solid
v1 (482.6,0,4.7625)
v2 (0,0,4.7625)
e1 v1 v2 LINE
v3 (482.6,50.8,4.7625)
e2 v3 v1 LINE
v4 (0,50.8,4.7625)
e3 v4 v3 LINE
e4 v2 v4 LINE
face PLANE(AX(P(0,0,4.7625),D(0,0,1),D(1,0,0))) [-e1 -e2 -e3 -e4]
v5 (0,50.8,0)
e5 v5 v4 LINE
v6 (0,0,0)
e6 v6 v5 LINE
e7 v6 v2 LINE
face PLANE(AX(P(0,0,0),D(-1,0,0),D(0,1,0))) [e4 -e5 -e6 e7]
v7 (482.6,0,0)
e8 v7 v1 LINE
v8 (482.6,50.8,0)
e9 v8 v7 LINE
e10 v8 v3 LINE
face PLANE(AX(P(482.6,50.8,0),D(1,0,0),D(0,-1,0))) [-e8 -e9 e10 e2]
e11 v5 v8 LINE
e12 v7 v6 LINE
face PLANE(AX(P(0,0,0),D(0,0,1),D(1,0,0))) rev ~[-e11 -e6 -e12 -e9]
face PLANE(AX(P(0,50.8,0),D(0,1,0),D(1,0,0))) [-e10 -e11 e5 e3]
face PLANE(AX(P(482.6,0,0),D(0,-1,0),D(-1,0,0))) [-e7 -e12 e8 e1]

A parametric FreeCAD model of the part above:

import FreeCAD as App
import Part
import Sketcher

V = App.Vector
Q = App.Units.Quantity


def add_polygon(sketch, points):
    """Adds a closed chain of lines whose ends are joined by coincident constraints."""
    first, n = sketch.GeometryCount, len(points)
    for a, b in zip(points, points[1:] + points[:1]):
        sketch.addGeometry(Part.LineSegment(App.Vector(*a, 0), App.Vector(*b, 0)), False)
    for i in range(n):
        sketch.addConstraint(Sketcher.Constraint("Coincident", first + i, 2, first + (i + 1) % n, 1))

doc = App.newDocument("Part")
body = doc.addObject("PartDesign::Body", "Body")

sketch1 = body.newObject("Sketcher::SketchObject", "Sketch")
sketch1.AttachmentSupport = (doc.getObject("XY_Plane"), [""])
sketch1.MapMode = "FlatFace"
add_polygon(sketch1, [(483, 51), (0, 51), (0, 0), (483, 0)])
sketch1.addConstraint([
    Sketcher.Constraint("Horizontal", 0),
    Sketcher.Constraint("Vertical", 1),
    Sketcher.Constraint("Horizontal", 2),
    Sketcher.Constraint("Vertical", 3),
    Sketcher.Constraint("Coincident", 1, 2, -1, 1),
    Sketcher.Constraint("DistanceX", 0, 2, 0, 1, Q("19 in")),
    Sketcher.Constraint("DistanceY", 1, 2, 1, 1, Q("2 in")),
])
pad1 = body.newObject("PartDesign::Pad", "Pad")
pad1.Profile = sketch1
pad1.Length = Q("0.1875 in")

doc.recompute()
